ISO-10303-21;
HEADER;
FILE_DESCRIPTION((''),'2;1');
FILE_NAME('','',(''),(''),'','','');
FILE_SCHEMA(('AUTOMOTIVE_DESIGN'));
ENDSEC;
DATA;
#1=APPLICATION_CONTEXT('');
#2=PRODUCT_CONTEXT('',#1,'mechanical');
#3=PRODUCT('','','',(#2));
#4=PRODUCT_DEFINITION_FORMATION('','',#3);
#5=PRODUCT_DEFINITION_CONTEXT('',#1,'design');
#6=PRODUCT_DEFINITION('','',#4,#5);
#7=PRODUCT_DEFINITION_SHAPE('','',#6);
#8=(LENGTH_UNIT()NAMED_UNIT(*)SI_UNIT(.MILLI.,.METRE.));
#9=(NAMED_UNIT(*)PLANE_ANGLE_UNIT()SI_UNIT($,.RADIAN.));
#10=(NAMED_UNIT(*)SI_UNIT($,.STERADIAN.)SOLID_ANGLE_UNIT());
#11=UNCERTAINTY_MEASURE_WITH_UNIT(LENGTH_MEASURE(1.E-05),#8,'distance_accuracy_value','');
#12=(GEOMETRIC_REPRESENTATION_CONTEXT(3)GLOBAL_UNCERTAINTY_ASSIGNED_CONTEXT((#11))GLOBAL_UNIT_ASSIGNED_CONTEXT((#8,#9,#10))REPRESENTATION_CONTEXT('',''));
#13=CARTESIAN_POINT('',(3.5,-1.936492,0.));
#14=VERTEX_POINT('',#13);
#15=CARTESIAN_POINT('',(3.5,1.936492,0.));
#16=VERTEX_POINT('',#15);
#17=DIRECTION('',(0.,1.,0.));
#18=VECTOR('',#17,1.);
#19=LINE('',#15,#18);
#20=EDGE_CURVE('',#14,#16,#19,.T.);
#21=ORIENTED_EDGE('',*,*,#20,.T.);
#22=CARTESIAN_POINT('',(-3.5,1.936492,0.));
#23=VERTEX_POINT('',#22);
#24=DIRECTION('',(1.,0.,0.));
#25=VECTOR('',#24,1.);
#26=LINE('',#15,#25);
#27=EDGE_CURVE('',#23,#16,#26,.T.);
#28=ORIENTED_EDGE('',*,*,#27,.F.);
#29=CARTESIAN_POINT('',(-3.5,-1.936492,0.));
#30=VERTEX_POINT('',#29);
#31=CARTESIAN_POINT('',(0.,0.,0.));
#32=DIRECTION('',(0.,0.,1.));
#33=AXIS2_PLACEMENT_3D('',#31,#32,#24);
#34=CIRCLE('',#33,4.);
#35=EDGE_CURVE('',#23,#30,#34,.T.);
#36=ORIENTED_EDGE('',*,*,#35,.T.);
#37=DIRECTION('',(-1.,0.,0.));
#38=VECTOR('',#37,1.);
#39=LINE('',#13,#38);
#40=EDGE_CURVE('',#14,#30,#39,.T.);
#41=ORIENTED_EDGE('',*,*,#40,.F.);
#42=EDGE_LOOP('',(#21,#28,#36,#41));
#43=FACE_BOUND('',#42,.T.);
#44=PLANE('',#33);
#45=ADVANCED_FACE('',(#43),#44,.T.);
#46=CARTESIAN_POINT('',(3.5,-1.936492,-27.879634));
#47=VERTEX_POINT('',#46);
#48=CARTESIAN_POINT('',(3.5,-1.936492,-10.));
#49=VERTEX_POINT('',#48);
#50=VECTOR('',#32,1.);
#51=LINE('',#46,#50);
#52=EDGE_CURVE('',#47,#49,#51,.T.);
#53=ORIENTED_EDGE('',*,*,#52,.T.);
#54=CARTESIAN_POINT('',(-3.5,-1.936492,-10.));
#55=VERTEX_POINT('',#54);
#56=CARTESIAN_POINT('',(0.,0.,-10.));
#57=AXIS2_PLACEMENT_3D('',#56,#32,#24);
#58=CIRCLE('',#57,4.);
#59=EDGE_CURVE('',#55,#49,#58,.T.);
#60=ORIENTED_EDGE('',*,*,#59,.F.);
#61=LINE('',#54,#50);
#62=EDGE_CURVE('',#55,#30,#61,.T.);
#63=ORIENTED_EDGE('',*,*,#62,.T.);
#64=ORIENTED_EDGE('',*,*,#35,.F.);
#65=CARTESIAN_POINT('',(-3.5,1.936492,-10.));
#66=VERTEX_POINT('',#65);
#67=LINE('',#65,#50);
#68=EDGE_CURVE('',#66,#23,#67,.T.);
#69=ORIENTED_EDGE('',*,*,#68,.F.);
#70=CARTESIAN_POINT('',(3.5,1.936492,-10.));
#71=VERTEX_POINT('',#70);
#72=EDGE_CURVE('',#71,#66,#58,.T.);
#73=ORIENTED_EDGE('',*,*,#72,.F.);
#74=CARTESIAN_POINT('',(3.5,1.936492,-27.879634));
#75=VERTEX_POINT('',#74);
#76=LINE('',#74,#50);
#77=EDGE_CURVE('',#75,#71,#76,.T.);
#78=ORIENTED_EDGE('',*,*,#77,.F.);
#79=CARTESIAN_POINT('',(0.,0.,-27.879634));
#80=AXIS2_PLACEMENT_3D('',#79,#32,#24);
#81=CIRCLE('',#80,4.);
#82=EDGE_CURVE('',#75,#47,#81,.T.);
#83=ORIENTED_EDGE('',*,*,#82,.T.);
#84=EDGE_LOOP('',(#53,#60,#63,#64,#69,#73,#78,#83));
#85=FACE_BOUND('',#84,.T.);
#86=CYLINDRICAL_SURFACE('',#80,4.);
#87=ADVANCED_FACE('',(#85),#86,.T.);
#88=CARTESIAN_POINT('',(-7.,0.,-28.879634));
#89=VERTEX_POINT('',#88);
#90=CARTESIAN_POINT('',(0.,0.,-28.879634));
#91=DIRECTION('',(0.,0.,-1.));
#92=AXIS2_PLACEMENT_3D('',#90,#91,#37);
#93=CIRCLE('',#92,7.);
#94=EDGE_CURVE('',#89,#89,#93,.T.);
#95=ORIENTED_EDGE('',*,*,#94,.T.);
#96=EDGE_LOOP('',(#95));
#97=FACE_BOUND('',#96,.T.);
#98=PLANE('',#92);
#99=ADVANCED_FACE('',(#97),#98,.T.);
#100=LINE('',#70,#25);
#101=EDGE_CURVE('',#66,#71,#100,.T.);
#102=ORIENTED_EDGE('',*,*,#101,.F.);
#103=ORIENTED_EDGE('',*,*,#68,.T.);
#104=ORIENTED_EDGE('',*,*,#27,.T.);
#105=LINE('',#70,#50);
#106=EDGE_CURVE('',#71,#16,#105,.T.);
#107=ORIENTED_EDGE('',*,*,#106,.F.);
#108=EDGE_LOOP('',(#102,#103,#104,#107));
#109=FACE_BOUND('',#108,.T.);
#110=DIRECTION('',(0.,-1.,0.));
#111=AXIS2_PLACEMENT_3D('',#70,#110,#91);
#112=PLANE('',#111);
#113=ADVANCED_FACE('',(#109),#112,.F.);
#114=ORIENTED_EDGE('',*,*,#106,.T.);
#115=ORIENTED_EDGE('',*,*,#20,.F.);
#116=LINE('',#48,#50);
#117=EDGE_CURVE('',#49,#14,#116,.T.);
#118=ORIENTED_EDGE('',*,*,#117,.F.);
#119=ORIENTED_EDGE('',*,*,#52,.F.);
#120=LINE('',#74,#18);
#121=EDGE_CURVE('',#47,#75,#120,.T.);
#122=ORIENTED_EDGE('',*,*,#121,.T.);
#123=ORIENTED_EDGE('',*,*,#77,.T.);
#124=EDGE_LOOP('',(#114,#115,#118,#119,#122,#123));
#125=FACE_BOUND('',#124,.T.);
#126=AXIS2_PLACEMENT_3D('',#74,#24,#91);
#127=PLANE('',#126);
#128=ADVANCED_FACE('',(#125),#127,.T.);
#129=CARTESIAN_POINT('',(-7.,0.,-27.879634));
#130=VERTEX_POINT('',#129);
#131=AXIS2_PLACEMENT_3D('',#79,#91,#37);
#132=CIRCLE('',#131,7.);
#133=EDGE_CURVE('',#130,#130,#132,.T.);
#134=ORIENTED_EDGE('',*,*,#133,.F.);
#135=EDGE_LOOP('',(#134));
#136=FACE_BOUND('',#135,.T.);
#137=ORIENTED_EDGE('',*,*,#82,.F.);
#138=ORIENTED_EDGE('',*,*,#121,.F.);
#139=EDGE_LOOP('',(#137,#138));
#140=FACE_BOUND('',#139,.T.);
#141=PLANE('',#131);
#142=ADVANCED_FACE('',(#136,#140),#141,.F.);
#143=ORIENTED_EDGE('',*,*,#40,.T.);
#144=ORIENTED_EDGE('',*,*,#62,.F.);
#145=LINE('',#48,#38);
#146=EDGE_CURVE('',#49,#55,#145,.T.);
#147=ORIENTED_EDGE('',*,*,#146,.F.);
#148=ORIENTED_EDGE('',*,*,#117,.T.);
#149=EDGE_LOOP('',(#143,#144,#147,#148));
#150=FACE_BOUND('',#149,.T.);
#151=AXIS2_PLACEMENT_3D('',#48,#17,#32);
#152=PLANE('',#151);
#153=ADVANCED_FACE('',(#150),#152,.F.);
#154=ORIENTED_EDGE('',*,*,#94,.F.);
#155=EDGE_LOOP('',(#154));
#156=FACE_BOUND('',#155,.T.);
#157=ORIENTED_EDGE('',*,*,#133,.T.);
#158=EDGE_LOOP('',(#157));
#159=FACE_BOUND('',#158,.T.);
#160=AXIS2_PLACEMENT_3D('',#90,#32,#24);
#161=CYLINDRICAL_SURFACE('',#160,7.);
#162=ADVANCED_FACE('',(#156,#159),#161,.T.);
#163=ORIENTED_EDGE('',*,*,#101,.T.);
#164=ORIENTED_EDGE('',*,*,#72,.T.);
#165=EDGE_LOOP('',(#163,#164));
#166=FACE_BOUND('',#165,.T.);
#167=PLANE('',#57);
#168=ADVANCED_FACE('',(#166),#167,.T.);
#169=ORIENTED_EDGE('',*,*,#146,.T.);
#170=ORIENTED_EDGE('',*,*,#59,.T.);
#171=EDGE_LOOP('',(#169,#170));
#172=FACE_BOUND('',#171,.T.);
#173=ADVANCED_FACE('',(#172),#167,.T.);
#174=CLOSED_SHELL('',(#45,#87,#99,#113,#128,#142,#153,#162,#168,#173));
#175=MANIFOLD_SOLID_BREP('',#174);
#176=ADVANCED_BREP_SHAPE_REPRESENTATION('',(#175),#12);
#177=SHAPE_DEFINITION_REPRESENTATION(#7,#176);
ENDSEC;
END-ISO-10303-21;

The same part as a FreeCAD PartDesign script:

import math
import FreeCAD as App
import Part
import Sketcher
from FreeCAD import Vector
Q = App.Units.Quantity

doc = App.newDocument("Part")
body = doc.addObject("PartDesign::Body", "Body")

# Sketch on XY plane
sketch1 = body.newObject("Sketcher::SketchObject", "Sketch")
sketch1.AttachmentSupport = (doc.getObject("XY_Plane"), [""])
sketch1.MapMode = "FlatFace"
sketch1.addGeometry(Part.LineSegment(Vector(3.5, -1.936492, 0), Vector(3.5, 1.936492, 0)), False)
sketch1.addGeometry(Part.ArcOfCircle(Part.Circle(Vector(0, 0, 0), Vector(0, 0, 1), 4), math.radians(28.955024), math.radians(331.044976)), False)
sketch1.addConstraint(Sketcher.Constraint("Coincident", 0, 1, 1, 2))
sketch1.addConstraint(Sketcher.Constraint("Coincident", 1, 1, 0, 2))
sketch1.addConstraint(Sketcher.Constraint("Vertical", 0))
sketch1.addConstraint(Sketcher.Constraint("Coincident", 1, 3, -1, 1))
sketch1.addConstraint(Sketcher.Constraint("Radius", 1, Q("4 mm")))
sketch1.addConstraint(Sketcher.Constraint("DistanceX", -1, 1, 0, 1, Q("3.5 mm")))
pad1 = body.newObject("PartDesign::Pad", "Pad")
pad1.Profile = sketch1
pad1.Length = 27.879634
pad1.Reversed = True

# Sketch on XY plane
sketch2 = body.newObject("Sketcher::SketchObject", "Sketch001")
sketch2.AttachmentSupport = (doc.getObject("XY_Plane"), [""])
sketch2.MapMode = "FlatFace"
sketch2.addGeometry(Part.LineSegment(Vector(-3.5, 1.936492, 0), Vector(3.5, 1.936492, 0)), False)
sketch2.addGeometry(Part.ArcOfCircle(Part.Circle(Vector(0, 0, 0), Vector(0, 0, 1), 4), math.radians(28.955024), math.radians(151.044976)), False)
sketch2.addGeometry(Part.LineSegment(Vector(3.5, -1.936492, 0), Vector(-3.5, -1.936492, 0)), False)
sketch2.addGeometry(Part.ArcOfCircle(Part.Circle(Vector(0, 0, 0), Vector(0, 0, 1), 4), math.radians(-151.044976), math.radians(-28.955024)), False)
sketch2.addConstraint(Sketcher.Constraint("Coincident", 0, 1, 1, 2))
sketch2.addConstraint(Sketcher.Constraint("Coincident", 1, 1, 0, 2))
sketch2.addConstraint(Sketcher.Constraint("Coincident", 2, 1, 3, 2))
sketch2.addConstraint(Sketcher.Constraint("Coincident", 3, 1, 2, 2))
sketch2.addConstraint(Sketcher.Constraint("Horizontal", 0))
sketch2.addConstraint(Sketcher.Constraint("Horizontal", 2))
sketch2.addConstraint(Sketcher.Constraint("Coincident", 1, 3, -1, 1))
sketch2.addConstraint(Sketcher.Constraint("Coincident", 3, 3, -1, 1))
sketch2.addConstraint(Sketcher.Constraint("Equal", 1, 3))
sketch2.addConstraint(Sketcher.Constraint("Vertical", 1, 1, 2, 1))
sketch2.addConstraint(Sketcher.Constraint("Radius", 1, Q("4 mm")))
sketch2.addConstraint(Sketcher.Constraint("DistanceX", 0, 1, 0, 2, Q("7 mm")))
pocket1 = body.newObject("PartDesign::Pocket", "Pocket")
pocket1.Profile = sketch2
pocket1.Length = 10

# Sketch on XY plane
sketch3 = body.newObject("Sketcher::SketchObject", "Sketch002")
sketch3.AttachmentSupport = (doc.getObject("XY_Plane"), [""])
sketch3.MapMode = "FlatFace"
sketch3.AttachmentOffset = App.Placement(Vector(0, 0, -27.879634), App.Rotation())
sketch3.addGeometry(Part.Circle(Vector(0, 0, 0), Vector(0, 0, 1), 7), False)
sketch3.addConstraint(Sketcher.Constraint("Coincident", 0, 3, -1, 1))
sketch3.addConstraint(Sketcher.Constraint("Diameter", 0, Q("14 mm")))
pad2 = body.newObject("PartDesign::Pad", "Pad001")
pad2.Profile = sketch3
pad2.Length = 1
pad2.Reversed = True

doc.recompute()
